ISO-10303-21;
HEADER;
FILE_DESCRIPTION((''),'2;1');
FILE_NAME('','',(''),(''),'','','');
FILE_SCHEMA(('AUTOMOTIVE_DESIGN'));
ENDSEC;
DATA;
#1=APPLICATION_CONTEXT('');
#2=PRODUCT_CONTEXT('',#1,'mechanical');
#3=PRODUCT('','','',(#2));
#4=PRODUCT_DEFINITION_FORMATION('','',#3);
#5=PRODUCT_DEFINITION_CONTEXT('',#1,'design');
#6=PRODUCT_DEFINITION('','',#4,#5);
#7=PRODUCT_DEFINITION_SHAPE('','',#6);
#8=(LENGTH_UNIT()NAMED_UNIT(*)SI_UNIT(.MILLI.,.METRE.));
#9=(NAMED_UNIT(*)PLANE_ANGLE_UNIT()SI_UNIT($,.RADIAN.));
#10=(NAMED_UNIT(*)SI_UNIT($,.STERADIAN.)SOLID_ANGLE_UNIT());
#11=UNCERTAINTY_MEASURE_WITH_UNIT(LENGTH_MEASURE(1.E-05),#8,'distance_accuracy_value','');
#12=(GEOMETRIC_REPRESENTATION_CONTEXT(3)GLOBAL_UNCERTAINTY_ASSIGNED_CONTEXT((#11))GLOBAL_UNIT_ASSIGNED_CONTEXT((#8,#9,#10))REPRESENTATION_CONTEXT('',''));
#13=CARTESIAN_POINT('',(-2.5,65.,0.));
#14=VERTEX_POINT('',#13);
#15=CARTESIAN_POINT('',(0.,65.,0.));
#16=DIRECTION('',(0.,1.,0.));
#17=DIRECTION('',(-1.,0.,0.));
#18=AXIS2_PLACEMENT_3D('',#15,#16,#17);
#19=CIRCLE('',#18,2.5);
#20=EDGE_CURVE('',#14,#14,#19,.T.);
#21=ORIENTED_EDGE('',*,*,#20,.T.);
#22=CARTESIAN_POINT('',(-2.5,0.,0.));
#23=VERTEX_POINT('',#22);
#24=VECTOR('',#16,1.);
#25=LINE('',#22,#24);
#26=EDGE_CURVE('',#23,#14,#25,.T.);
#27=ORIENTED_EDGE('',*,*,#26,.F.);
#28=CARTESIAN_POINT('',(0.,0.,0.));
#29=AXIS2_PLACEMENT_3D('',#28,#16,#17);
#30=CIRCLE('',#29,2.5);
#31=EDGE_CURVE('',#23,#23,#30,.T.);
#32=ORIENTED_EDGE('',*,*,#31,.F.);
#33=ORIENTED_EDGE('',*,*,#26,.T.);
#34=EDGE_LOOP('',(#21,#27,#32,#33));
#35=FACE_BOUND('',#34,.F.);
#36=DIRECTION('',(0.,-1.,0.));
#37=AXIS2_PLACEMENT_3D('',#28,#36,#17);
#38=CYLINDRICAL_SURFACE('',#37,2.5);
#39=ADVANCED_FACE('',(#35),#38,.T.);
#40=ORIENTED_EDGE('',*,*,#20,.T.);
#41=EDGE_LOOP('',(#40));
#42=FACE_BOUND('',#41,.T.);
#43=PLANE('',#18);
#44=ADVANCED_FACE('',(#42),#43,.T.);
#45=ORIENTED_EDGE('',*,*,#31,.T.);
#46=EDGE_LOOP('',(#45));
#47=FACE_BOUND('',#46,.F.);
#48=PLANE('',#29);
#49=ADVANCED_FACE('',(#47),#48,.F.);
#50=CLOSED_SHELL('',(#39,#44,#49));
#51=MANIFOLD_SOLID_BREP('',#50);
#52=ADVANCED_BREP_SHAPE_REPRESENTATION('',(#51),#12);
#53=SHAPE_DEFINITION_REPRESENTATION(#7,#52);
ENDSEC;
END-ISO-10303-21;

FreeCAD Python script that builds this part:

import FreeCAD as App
import Part
import Sketcher

V = App.Vector

doc = App.newDocument("Part")
body = doc.addObject("PartDesign::Body", "Body")

# Sketch on XZ plane
sketch1 = body.newObject("Sketcher::SketchObject", "Sketch")
sketch1.AttachmentSupport = (doc.getObject("XZ_Plane"), [""])
sketch1.MapMode = "FlatFace"
sketch1.addGeometry(Part.Circle(V(0, 0, 0), V(0, 0, 1), 2.5), False)
sketch1.addConstraint(Sketcher.Constraint("Coincident", 0, 3, -1, 1))
sketch1.addConstraint(Sketcher.Constraint("Diameter", 0, 5.0))
pad1 = body.newObject("PartDesign::Pad", "Pad")
pad1.Profile = sketch1
pad1.Length = 65
pad1.Reversed = True

doc.recompute()
